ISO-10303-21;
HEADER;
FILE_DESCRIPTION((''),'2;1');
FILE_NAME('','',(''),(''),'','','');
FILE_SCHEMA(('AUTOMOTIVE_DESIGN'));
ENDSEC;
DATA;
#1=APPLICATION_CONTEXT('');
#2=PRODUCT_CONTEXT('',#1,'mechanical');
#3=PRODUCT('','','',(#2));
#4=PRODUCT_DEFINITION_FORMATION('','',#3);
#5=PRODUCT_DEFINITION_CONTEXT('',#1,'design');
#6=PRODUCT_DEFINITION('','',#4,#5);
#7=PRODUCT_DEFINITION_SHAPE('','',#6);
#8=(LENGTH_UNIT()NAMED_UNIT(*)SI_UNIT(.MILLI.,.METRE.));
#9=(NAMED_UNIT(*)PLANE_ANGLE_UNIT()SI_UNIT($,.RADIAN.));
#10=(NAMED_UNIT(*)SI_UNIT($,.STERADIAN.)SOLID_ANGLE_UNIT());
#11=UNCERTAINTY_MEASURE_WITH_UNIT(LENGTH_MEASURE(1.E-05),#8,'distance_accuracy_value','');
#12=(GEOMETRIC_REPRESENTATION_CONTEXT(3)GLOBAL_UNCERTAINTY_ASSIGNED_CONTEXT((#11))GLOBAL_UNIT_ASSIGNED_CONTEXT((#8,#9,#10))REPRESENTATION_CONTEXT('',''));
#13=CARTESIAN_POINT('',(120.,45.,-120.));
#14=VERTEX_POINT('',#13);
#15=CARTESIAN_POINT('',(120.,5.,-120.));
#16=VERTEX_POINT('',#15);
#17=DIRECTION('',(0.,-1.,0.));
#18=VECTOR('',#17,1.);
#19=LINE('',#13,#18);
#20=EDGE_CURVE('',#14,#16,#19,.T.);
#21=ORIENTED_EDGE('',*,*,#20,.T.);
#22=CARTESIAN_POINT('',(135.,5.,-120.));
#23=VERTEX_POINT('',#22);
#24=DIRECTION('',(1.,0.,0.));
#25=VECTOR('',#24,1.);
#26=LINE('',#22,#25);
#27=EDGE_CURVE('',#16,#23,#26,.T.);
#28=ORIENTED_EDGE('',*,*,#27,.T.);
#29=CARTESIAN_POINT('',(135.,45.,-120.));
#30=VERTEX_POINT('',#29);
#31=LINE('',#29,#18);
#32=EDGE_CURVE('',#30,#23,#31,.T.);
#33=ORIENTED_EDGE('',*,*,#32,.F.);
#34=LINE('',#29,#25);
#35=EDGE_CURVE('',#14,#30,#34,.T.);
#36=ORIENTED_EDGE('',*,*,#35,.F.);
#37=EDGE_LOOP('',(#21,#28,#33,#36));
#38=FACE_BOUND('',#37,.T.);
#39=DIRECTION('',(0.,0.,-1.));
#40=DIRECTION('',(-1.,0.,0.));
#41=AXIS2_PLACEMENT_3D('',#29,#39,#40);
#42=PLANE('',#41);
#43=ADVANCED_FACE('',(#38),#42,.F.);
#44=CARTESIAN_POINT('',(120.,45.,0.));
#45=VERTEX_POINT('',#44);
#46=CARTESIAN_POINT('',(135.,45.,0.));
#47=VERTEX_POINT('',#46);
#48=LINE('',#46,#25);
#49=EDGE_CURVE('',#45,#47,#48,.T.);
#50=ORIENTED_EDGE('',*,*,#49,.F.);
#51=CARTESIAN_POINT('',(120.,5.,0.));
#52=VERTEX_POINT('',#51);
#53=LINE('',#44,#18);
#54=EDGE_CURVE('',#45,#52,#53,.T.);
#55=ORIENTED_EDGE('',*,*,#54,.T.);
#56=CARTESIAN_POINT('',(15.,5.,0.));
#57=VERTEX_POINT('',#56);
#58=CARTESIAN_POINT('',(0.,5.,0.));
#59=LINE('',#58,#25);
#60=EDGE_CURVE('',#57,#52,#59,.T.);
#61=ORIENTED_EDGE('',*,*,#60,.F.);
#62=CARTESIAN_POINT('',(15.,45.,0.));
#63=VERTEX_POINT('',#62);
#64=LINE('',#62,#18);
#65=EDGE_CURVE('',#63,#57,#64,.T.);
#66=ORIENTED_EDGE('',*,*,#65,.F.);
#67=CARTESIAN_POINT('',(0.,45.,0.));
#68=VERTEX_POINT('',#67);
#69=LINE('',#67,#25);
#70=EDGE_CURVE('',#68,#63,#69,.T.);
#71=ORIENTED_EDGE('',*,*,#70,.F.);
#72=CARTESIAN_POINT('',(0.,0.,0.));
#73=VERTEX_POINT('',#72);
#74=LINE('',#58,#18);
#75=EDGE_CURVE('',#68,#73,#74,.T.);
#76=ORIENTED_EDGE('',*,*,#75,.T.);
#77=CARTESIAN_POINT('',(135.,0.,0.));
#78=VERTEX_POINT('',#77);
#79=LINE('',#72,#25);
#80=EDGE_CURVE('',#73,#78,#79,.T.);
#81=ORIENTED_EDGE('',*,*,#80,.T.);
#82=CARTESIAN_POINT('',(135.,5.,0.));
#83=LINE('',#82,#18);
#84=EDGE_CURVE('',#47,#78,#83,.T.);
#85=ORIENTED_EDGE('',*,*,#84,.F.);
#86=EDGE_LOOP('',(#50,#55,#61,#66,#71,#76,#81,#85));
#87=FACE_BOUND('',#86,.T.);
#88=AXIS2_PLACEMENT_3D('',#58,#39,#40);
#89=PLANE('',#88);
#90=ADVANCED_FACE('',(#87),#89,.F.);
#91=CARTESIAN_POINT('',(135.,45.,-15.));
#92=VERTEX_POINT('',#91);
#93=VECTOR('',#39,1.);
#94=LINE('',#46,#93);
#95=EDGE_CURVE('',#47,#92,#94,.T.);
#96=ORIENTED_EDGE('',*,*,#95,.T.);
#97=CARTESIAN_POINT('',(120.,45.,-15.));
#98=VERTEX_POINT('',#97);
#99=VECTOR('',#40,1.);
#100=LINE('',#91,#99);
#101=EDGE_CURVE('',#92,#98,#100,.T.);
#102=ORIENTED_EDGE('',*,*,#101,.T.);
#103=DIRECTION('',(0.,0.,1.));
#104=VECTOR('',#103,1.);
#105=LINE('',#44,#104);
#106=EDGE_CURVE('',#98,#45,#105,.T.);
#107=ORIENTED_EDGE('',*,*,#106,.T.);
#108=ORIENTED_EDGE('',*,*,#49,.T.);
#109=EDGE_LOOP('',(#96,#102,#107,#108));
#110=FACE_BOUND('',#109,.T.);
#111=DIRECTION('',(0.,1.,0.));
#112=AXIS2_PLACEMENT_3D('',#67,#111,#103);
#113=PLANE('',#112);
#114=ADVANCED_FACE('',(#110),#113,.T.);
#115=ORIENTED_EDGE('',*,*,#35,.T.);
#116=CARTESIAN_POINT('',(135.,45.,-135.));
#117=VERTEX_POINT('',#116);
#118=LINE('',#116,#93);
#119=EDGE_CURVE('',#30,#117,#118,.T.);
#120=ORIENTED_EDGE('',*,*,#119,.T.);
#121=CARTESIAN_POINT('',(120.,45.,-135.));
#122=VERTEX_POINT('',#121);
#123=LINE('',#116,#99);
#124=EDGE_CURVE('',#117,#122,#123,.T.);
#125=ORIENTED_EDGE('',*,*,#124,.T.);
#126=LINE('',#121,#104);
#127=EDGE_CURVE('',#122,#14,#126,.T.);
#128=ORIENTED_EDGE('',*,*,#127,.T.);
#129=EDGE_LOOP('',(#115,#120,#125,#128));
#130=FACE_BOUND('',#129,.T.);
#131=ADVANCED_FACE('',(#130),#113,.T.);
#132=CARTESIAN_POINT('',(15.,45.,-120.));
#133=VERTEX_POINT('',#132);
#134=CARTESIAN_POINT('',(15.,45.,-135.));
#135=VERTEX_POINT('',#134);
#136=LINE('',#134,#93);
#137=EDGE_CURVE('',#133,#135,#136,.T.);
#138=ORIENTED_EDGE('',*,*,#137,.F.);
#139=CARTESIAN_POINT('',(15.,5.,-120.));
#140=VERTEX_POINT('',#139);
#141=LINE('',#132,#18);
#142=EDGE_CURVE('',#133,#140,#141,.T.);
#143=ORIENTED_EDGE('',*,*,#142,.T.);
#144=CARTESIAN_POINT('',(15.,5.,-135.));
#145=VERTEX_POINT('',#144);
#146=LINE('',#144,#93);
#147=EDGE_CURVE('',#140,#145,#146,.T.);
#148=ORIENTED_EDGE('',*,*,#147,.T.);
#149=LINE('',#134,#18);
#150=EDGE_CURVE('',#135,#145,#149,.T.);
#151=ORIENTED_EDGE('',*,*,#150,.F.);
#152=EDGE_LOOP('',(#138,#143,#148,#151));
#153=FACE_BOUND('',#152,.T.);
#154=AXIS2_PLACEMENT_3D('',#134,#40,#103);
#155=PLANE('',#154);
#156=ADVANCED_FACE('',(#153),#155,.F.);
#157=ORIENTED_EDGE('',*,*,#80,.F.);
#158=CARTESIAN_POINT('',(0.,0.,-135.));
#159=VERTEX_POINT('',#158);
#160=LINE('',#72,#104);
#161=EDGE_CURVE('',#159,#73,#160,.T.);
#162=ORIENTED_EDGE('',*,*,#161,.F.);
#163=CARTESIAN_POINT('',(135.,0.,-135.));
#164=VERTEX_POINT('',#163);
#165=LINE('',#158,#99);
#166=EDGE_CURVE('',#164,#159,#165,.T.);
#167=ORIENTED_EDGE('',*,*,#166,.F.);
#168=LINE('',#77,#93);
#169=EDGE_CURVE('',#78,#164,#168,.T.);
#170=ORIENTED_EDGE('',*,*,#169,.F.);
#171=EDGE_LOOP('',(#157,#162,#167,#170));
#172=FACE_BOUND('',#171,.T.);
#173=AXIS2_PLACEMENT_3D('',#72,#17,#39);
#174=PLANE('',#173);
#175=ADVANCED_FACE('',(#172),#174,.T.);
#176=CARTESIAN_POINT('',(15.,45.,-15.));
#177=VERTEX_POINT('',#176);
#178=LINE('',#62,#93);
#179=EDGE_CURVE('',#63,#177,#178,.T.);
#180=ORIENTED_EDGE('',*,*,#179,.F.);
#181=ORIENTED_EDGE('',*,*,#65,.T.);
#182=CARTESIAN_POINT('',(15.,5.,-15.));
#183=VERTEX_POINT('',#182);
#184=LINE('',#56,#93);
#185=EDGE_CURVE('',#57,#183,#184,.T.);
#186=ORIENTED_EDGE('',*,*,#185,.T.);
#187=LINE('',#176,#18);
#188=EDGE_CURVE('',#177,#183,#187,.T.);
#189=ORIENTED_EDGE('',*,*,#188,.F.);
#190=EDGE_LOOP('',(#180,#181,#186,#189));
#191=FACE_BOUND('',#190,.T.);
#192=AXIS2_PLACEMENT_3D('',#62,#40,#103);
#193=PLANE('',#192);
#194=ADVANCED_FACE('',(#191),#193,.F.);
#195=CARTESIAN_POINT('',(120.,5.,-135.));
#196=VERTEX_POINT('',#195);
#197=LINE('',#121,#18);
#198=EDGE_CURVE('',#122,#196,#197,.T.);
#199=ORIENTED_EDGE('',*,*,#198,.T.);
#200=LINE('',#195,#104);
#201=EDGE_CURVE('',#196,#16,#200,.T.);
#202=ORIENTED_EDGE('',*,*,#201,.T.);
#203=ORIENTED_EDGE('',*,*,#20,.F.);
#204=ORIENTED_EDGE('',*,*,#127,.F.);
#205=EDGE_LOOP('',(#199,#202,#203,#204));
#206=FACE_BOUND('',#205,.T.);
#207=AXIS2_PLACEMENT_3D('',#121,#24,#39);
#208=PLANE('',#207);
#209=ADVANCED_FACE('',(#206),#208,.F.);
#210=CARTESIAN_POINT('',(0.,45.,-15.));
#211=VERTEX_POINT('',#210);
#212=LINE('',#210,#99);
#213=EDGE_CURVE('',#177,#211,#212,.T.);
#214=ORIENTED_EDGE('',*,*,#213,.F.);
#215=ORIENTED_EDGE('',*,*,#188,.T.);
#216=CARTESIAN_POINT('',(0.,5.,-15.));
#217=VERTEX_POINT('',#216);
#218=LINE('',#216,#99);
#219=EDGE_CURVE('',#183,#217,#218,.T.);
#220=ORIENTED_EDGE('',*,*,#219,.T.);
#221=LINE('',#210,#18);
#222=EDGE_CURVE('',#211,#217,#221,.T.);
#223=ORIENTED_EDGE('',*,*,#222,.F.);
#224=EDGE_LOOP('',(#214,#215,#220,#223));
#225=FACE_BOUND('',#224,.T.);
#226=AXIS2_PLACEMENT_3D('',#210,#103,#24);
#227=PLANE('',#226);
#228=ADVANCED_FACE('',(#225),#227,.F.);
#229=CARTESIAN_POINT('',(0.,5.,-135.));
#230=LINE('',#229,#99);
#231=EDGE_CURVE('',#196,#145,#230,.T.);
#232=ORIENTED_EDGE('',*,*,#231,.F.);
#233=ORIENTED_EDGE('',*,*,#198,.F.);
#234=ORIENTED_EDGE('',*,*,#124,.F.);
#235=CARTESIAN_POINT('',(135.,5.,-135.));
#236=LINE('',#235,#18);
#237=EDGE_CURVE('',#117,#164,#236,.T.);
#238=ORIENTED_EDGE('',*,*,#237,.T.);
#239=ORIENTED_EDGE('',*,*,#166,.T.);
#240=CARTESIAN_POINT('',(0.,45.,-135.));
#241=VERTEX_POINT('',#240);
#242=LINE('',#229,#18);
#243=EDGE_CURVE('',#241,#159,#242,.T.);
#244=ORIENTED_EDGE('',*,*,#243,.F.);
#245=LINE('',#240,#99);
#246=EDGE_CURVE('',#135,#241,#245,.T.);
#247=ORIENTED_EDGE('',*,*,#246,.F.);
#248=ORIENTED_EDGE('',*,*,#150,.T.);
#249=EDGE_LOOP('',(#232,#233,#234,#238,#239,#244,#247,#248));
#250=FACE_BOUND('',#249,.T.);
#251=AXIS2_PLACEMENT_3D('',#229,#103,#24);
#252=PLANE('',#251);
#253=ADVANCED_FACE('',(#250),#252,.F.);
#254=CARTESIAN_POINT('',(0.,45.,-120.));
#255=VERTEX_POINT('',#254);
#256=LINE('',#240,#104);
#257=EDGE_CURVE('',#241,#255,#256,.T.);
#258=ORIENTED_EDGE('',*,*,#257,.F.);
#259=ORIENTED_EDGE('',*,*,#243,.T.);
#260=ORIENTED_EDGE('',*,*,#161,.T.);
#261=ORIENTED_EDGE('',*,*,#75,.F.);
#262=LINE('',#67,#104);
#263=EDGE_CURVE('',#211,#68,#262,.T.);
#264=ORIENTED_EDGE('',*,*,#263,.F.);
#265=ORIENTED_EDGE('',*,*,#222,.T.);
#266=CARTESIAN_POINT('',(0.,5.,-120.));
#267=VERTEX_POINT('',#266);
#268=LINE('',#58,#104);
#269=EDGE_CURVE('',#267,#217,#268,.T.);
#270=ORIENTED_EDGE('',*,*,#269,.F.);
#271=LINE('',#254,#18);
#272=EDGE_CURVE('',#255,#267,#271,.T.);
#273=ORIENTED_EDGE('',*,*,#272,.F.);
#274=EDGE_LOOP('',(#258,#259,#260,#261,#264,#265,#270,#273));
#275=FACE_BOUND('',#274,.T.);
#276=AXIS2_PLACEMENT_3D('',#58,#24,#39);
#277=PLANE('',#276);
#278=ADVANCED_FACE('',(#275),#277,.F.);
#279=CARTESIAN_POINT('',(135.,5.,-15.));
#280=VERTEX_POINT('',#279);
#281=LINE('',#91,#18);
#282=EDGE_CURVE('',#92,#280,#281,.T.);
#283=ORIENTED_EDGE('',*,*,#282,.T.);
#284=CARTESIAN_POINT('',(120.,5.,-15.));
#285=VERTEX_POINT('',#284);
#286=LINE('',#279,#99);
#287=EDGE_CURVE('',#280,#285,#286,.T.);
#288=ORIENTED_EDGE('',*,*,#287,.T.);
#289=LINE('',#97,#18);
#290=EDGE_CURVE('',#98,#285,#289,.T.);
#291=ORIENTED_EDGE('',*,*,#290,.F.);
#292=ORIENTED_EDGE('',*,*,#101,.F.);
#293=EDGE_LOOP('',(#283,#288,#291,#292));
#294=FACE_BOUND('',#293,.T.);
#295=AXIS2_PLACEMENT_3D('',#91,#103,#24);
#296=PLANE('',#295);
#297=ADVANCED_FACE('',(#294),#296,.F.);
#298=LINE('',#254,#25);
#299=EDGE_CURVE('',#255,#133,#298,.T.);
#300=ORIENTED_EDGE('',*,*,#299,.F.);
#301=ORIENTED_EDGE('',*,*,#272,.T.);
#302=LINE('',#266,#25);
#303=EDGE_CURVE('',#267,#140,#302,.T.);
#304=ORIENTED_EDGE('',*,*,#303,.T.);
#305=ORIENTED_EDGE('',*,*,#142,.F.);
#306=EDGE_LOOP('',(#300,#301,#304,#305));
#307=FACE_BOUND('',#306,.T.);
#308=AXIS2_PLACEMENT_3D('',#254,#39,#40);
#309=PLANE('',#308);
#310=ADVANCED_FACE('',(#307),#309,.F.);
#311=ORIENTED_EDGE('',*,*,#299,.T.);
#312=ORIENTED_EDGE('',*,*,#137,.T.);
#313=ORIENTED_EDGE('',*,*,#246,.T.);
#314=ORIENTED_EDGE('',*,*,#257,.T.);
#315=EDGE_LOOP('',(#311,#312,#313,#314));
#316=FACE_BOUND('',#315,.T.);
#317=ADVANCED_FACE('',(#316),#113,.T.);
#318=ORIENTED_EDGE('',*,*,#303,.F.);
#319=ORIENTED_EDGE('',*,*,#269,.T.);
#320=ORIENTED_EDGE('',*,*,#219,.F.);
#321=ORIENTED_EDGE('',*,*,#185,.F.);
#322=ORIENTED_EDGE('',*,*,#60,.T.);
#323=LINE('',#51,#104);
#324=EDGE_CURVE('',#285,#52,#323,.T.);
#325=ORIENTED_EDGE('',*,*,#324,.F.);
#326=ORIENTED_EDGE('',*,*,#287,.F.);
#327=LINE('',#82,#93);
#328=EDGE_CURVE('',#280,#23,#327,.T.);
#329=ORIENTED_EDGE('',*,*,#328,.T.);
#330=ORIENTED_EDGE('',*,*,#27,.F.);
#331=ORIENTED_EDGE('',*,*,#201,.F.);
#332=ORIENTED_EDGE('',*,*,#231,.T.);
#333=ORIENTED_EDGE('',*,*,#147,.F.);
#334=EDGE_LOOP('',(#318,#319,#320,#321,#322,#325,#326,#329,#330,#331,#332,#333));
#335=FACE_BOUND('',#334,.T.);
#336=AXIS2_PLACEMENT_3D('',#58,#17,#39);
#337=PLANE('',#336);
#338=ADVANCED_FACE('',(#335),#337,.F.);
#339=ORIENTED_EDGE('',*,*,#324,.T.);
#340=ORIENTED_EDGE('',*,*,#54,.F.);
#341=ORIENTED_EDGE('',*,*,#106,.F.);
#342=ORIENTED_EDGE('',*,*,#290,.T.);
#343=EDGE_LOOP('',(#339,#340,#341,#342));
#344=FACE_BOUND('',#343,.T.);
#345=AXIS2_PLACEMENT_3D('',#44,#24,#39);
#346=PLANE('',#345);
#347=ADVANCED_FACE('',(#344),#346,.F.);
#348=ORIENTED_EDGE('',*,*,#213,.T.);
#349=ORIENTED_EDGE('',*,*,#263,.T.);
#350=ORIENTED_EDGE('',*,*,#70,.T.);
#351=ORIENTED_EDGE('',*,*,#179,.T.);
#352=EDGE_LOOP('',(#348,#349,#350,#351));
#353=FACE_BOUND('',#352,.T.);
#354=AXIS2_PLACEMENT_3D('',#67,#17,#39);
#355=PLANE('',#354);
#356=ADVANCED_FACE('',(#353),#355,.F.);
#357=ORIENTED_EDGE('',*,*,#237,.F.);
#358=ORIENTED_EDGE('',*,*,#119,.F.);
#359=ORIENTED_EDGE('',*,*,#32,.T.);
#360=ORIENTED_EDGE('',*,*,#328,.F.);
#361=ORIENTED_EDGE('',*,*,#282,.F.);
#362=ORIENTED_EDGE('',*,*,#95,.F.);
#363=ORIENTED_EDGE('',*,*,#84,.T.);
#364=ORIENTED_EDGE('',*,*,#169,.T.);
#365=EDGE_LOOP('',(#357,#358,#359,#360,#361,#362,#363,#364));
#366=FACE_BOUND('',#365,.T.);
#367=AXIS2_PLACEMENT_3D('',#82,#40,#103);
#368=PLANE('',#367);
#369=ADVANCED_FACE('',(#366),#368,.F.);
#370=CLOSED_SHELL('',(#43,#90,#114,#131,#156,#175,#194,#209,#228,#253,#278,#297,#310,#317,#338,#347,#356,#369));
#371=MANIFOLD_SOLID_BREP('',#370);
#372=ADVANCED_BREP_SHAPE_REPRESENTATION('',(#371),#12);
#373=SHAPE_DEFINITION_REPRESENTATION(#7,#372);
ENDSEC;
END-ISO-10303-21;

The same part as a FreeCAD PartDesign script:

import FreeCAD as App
import Part
import Sketcher
from FreeCAD import Vector
Q = App.Units.Quantity

doc = App.newDocument("Part")
body = doc.addObject("PartDesign::Body", "Body")

sketch1 = body.newObject("Sketcher::SketchObject", "Sketch")
sketch1.AttachmentSupport = (doc.getObject("XZ_Plane"), [""])
sketch1.MapMode = "FlatFace"
sketch1.addGeometry([
    Part.LineSegment(Vector(0, -135, 0), Vector(0, 0, 0)),
    Part.LineSegment(Vector(0, 0, 0), Vector(135, 0, 0)),
    Part.LineSegment(Vector(135, 0, 0), Vector(135, -135, 0)),
    Part.LineSegment(Vector(135, -135, 0), Vector(0, -135, 0)),
], False)
sketch1.addConstraint([
    Sketcher.Constraint("Coincident", 0, 2, 1, 1),
    Sketcher.Constraint("Coincident", 1, 2, 2, 1),
    Sketcher.Constraint("Coincident", 2, 2, 3, 1),
    Sketcher.Constraint("Coincident", 3, 2, 0, 1),
    Sketcher.Constraint("Vertical", 0),
    Sketcher.Constraint("Horizontal", 1),
    Sketcher.Constraint("Vertical", 2),
    Sketcher.Constraint("Horizontal", 3),
    Sketcher.Constraint("Coincident", 0, 2, -1, 1),
    Sketcher.Constraint("Equal", 3, 0),
    Sketcher.Constraint("DistanceX", 1, 1, 1, 2, Q("135 mm")),
])
pad1 = body.newObject("PartDesign::Pad", "Pad")
pad1.Profile = sketch1
pad1.Length = 5
pad1.Reversed = True

sketch2 = body.newObject("Sketcher::SketchObject", "Sketch001")
sketch2.AttachmentSupport = (doc.getObject("XZ_Plane"), [""])
sketch2.MapMode = "FlatFace"
sketch2.AttachmentOffset = App.Placement(Vector(0, 0, -5), App.Rotation())
sketch2.addGeometry([
    Part.LineSegment(Vector(0, -15, 0), Vector(0, 0, 0)),
    Part.LineSegment(Vector(0, 0, 0), Vector(15, 0, 0)),
    Part.LineSegment(Vector(15, 0, 0), Vector(15, -15, 0)),
    Part.LineSegment(Vector(15, -15, 0), Vector(0, -15, 0)),
    Part.LineSegment(Vector(120, -15, 0), Vector(120, 0, 0)),
    Part.LineSegment(Vector(120, 0, 0), Vector(135, 0, 0)),
    Part.LineSegment(Vector(135, 0, 0), Vector(135, -15, 0)),
    Part.LineSegment(Vector(135, -15, 0), Vector(120, -15, 0)),
    Part.LineSegment(Vector(120, -135, 0), Vector(120, -120, 0)),
    Part.LineSegment(Vector(120, -120, 0), Vector(135, -120, 0)),
    Part.LineSegment(Vector(135, -120, 0), Vector(135, -135, 0)),
    Part.LineSegment(Vector(135, -135, 0), Vector(120, -135, 0)),
    Part.LineSegment(Vector(0, -135, 0), Vector(0, -120, 0)),
    Part.LineSegment(Vector(0, -120, 0), Vector(15, -120, 0)),
    Part.LineSegment(Vector(15, -120, 0), Vector(15, -135, 0)),
    Part.LineSegment(Vector(15, -135, 0), Vector(0, -135, 0)),
], False)
sketch2.addConstraint([
    Sketcher.Constraint("Coincident", 0, 2, 1, 1),
    Sketcher.Constraint("Coincident", 1, 2, 2, 1),
    Sketcher.Constraint("Coincident", 2, 2, 3, 1),
    Sketcher.Constraint("Coincident", 3, 2, 0, 1),
    Sketcher.Constraint("Coincident", 4, 2, 5, 1),
    Sketcher.Constraint("Coincident", 5, 2, 6, 1),
    Sketcher.Constraint("Coincident", 6, 2, 7, 1),
    Sketcher.Constraint("Coincident", 7, 2, 4, 1),
    Sketcher.Constraint("Coincident", 8, 2, 9, 1),
    Sketcher.Constraint("Coincident", 9, 2, 10, 1),
    Sketcher.Constraint("Coincident", 10, 2, 11, 1),
    Sketcher.Constraint("Coincident", 11, 2, 8, 1),
    Sketcher.Constraint("Coincident", 12, 2, 13, 1),
    Sketcher.Constraint("Coincident", 13, 2, 14, 1),
    Sketcher.Constraint("Coincident", 14, 2, 15, 1),
    Sketcher.Constraint("Coincident", 15, 2, 12, 1),
    Sketcher.Constraint("Vertical", 0),
    Sketcher.Constraint("Horizontal", 1),
    Sketcher.Constraint("Vertical", 2),
    Sketcher.Constraint("Horizontal", 3),
    Sketcher.Constraint("Vertical", 4),
    Sketcher.Constraint("Horizontal", 5),
    Sketcher.Constraint("Vertical", 6),
    Sketcher.Constraint("Horizontal", 7),
    Sketcher.Constraint("Vertical", 8),
    Sketcher.Constraint("Horizontal", 9),
    Sketcher.Constraint("Vertical", 10),
    Sketcher.Constraint("Horizontal", 11),
    Sketcher.Constraint("Vertical", 12),
    Sketcher.Constraint("Horizontal", 13),
    Sketcher.Constraint("Vertical", 14),
    Sketcher.Constraint("Horizontal", 15),
    Sketcher.Constraint("Coincident", 0, 2, -1, 1),
    Sketcher.Constraint("PointOnObject", 4, 2, -1),
    Sketcher.Constraint("PointOnObject", 12, 2, -2),
    Sketcher.Constraint("Horizontal", 3, 2, 6, 2),
    Sketcher.Constraint("Horizontal", 9, 2, 12, 2),
    Sketcher.Constraint("Horizontal", 11, 2, 14, 2),
    Sketcher.Constraint("Vertical", 7, 2, 8, 2),
    Sketcher.Constraint("Vertical", 6, 2, 9, 2),
    Sketcher.Constraint("Vertical", 2, 2, 13, 2),
    Sketcher.Constraint("Equal", 3, 5),
    Sketcher.Constraint("Equal", 15, 0),
    Sketcher.Constraint("Equal", 6, 8),
    Sketcher.Constraint("DistanceX", 1, 1, 1, 2, Q("15 mm")),
    Sketcher.Constraint("DistanceX", -1, 1, 4, 2, Q("120 mm")),
    Sketcher.Constraint("DistanceY", 8, 2, -1, 1, Q("120 mm")),
])
pad2 = body.newObject("PartDesign::Pad", "Pad001")
pad2.Profile = sketch2
pad2.Length = 40
pad2.Reversed = True

doc.recompute()
